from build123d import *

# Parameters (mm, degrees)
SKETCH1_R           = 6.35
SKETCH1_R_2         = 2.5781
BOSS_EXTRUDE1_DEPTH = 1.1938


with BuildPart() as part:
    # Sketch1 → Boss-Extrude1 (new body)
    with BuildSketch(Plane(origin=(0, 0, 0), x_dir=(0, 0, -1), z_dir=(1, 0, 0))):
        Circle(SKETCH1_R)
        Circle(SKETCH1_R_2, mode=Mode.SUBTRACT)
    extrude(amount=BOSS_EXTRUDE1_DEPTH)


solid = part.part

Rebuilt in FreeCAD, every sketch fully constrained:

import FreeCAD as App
import Part
import Sketcher
from FreeCAD import Vector
Q = App.Units.Quantity

doc = App.newDocument("Part")
body = doc.addObject("PartDesign::Body", "Body")

# Sketch on YZ plane
sketch1 = body.newObject("Sketcher::SketchObject", "Sketch")
sketch1.AttachmentSupport = (doc.getObject("YZ_Plane"), [""])
sketch1.MapMode = "FlatFace"
sketch1.addGeometry(Part.Circle(Vector(0, 0, 0), Vector(0, 0, 1), 6.3), False)
sketch1.addGeometry(Part.Circle(Vector(0, 0, 0), Vector(0, 0, 1), 2.6), False)
sketch1.addConstraint(Sketcher.Constraint("Coincident", 0, 3, -1, 1))
sketch1.addConstraint(Sketcher.Constraint("Coincident", 1, 3, -1, 1))
sketch1.addConstraint(Sketcher.Constraint("Diameter", 0, Q("0.5 in")))
sketch1.addConstraint(Sketcher.Constraint("Diameter", 1, Q("0.203 in")))
pad1 = body.newObject("PartDesign::Pad", "Pad")
pad1.Profile = sketch1
pad1.Length = Q("0.047 in")

doc.recompute()
